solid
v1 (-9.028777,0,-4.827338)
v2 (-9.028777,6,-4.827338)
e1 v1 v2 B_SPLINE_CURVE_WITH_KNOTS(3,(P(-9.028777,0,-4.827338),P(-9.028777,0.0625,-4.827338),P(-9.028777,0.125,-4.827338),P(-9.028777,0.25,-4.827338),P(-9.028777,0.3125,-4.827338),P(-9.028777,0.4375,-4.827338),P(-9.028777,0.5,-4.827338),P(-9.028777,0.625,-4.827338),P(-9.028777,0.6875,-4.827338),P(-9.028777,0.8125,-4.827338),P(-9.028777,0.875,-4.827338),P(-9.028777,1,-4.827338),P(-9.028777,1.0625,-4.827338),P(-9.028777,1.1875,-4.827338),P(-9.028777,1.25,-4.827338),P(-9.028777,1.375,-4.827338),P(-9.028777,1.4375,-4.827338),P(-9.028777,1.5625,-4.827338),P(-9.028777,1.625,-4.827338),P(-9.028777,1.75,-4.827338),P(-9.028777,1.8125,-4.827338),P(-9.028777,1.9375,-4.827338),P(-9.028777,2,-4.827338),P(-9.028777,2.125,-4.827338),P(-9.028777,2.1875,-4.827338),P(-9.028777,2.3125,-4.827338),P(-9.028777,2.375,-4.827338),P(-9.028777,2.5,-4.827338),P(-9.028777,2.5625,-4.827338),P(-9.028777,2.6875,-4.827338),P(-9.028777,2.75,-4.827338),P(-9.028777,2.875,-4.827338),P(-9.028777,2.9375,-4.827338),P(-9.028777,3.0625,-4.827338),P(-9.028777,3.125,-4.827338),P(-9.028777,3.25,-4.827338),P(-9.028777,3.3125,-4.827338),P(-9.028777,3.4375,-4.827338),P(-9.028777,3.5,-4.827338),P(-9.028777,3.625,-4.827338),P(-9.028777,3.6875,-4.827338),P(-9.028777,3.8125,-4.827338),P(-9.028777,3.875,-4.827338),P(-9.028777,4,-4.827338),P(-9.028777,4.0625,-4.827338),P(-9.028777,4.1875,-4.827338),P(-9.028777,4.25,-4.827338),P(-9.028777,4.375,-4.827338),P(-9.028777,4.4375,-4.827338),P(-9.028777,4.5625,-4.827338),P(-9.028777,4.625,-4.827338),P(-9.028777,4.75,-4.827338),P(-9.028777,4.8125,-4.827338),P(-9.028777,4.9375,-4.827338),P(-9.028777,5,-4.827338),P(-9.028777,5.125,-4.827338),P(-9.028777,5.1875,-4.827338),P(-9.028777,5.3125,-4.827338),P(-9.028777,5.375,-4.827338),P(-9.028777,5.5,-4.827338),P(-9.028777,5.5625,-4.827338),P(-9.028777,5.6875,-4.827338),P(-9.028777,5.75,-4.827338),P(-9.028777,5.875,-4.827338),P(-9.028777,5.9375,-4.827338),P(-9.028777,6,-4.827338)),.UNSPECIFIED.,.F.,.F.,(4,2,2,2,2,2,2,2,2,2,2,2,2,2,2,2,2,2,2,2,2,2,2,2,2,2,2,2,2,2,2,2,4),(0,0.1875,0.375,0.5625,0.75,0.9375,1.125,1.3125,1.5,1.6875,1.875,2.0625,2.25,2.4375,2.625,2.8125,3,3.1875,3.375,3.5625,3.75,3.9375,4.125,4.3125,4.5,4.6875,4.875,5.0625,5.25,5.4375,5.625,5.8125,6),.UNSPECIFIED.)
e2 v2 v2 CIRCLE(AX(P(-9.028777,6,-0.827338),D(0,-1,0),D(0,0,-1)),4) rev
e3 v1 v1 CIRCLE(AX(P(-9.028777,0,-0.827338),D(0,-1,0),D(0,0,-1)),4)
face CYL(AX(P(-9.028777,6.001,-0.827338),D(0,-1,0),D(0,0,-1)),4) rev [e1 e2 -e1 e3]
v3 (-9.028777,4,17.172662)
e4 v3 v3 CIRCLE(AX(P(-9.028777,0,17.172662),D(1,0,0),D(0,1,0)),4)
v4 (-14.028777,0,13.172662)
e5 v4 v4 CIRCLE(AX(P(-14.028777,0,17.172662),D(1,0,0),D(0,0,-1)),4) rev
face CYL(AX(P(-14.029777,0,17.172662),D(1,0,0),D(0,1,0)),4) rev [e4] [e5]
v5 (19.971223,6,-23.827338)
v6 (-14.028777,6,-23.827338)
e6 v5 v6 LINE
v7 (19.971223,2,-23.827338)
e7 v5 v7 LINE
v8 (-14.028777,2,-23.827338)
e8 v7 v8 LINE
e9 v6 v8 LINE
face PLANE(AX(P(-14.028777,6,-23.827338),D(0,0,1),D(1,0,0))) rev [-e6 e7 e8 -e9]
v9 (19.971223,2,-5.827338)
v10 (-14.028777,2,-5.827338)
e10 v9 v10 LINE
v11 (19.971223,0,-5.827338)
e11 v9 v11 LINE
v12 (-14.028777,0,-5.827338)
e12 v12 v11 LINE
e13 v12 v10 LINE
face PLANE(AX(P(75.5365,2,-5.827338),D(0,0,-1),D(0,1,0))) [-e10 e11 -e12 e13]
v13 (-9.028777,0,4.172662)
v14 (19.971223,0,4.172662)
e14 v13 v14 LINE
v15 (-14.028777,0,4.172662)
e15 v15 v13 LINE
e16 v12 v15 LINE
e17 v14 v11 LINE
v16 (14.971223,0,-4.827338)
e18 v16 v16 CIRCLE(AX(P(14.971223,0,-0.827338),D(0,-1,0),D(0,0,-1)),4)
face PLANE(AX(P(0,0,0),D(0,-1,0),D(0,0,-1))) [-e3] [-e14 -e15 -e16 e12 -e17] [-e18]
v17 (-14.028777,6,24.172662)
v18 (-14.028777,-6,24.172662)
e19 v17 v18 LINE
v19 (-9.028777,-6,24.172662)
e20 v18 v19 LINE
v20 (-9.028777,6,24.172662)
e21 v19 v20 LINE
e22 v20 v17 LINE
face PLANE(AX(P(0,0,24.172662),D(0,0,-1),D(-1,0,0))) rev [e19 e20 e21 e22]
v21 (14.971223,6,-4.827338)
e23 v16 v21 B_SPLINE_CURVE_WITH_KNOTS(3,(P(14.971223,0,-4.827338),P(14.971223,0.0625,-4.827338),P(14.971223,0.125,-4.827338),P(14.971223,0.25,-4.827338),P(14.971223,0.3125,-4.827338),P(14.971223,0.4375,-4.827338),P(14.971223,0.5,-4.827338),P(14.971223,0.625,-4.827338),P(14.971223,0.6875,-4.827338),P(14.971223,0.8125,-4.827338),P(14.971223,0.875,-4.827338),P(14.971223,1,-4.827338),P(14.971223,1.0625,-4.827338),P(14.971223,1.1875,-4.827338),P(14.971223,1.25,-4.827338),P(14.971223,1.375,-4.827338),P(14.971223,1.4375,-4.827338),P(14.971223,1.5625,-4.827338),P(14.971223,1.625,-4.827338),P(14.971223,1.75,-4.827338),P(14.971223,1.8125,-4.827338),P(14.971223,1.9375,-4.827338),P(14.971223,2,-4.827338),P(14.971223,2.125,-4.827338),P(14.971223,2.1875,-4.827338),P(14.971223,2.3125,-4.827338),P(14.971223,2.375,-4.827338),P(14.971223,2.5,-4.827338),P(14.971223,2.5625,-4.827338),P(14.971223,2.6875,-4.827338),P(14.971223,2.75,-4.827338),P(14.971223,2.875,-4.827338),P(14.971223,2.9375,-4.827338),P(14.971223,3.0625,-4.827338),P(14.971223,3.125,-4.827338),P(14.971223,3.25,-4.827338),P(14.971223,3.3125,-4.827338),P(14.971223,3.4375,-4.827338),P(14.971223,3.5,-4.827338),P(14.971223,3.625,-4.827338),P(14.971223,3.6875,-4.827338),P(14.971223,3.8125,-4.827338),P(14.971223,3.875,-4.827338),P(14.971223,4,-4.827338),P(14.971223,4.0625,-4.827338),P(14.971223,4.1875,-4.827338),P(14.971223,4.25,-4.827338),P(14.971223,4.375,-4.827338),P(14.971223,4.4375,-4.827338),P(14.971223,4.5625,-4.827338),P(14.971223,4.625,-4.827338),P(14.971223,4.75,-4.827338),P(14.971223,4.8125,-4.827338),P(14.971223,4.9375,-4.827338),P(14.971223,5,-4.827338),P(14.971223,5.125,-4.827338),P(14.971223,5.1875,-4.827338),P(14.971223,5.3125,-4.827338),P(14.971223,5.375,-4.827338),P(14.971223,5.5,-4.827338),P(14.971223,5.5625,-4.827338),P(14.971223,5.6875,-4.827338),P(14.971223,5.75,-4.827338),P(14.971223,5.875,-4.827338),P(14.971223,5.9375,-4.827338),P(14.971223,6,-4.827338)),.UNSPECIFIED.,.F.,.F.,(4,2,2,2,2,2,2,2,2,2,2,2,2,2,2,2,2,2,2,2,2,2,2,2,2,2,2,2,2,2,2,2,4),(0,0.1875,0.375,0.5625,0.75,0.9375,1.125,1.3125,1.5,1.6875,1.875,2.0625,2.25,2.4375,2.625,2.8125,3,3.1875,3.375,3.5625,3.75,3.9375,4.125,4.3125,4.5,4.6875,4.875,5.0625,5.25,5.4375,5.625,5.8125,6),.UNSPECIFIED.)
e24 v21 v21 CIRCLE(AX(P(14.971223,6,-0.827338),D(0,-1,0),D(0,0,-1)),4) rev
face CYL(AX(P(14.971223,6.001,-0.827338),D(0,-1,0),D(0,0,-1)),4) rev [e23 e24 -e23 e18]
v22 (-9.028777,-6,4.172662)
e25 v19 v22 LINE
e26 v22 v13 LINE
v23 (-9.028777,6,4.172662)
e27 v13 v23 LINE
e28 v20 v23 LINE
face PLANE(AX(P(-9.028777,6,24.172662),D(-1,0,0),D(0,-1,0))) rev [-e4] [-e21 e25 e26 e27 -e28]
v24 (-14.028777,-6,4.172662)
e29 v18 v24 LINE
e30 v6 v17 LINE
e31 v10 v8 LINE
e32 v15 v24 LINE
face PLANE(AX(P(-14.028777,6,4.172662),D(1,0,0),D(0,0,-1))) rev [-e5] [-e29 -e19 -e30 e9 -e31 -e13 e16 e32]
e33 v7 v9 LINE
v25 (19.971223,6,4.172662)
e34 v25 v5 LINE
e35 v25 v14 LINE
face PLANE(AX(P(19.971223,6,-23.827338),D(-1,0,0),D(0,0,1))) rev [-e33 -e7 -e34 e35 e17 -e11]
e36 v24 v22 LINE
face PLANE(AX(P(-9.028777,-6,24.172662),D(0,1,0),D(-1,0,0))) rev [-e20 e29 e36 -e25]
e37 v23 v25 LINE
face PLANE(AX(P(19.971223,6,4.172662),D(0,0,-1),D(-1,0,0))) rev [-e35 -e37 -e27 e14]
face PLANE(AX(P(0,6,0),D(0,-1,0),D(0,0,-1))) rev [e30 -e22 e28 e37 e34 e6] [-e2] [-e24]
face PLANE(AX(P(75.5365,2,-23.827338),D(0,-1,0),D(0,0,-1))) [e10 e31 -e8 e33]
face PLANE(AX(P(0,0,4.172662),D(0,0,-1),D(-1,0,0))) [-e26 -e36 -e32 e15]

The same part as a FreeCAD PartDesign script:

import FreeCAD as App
import Part
import Sketcher
from FreeCAD import Vector


def add_polygon(sketch, points):
    """Adds a closed chain of lines whose ends are joined by coincident constraints."""
    first, n = sketch.GeometryCount, len(points)
    for a, b in zip(points, points[1:] + points[:1]):
        sketch.addGeometry(Part.LineSegment(App.Vector(*a, 0), App.Vector(*b, 0)), False)
    for i in range(n):
        sketch.addConstraint(Sketcher.Constraint("Coincident", first + i, 2, first + (i + 1) % n, 1))

doc = App.newDocument("Part")
body = doc.addObject("PartDesign::Body", "Body")

sketch1 = body.newObject("Sketcher::SketchObject", "Sketch")
sketch1.AttachmentSupport = (doc.getObject("XZ_Plane"), [""])
sketch1.MapMode = "FlatFace"
add_polygon(sketch1, [(-14.028777, -23.827338), (-14.028777, 4.172662), (19.971223, 4.172662), (19.971223, -23.827338)])
sketch1.addConstraint(Sketcher.Constraint("Vertical", 0))
sketch1.addConstraint(Sketcher.Constraint("Horizontal", 1))
sketch1.addConstraint(Sketcher.Constraint("Vertical", 2))
sketch1.addConstraint(Sketcher.Constraint("Horizontal", 3))
sketch1.addConstraint(Sketcher.Constraint("DistanceX", 1, 1, 1, 2, 34.0))
sketch1.addConstraint(Sketcher.Constraint("DistanceY", 0, 1, 0, 2, 28.0))
sketch1.addConstraint(Sketcher.Constraint("DistanceY", -1, 1, 0, 2, 4.172662))
sketch1.addConstraint(Sketcher.Constraint("DistanceX", 0, 2, -1, 1, 14.028777))
pad1 = body.newObject("PartDesign::Pad", "Pad")
pad1.Profile = sketch1
pad1.Length = 6
pad1.Reversed = True

sketch2 = body.newObject("Sketcher::SketchObject", "Sketch001")
sketch2.AttachmentSupport = (doc.getObject("YZ_Plane"), [""])
sketch2.MapMode = "FlatFace"
sketch2.AttachmentOffset = App.Placement(Vector(0, 0, 19.971223), App.Rotation())
add_polygon(sketch2, [(2, -90.395881), (2, -5.827338), (-66.568542, -5.827338), (-169.983865, -89.676932), (-101.415323, -174.245475)])
sketch2.addConstraint(Sketcher.Constraint("Vertical", 0))
sketch2.addConstraint(Sketcher.Constraint("Horizontal", 1))
sketch2.addConstraint(Sketcher.Constraint("Perpendicular", 2, 3))
sketch2.addConstraint(Sketcher.Constraint("Perpendicular", 3, 4))
sketch2.addConstraint(Sketcher.Constraint("Equal", 2, 4))
sketch2.addConstraint(Sketcher.Constraint("DistanceX", -1, 1, 0, 2, 2.0))
sketch2.addConstraint(Sketcher.Constraint("DistanceX", 1, 2, 1, 1, 68.568542))
sketch2.addConstraint(Sketcher.Constraint("DistanceY", 0, 1, 0, 2, 84.568542))
sketch2.addConstraint(Sketcher.Constraint("DistanceY", 0, 2, -1, 1, 5.827338))
sketch2.addConstraint(Sketcher.Constraint("DistanceX", 3, 2, 1, 2, 34.84678))
pocket1 = body.newObject("PartDesign::Pocket", "Pocket")
pocket1.Profile = sketch2
pocket1.Type = "ThroughAll"
pocket1.Midplane = True

sketch3 = body.newObject("Sketcher::SketchObject", "Sketch002")
sketch3.AttachmentSupport = (doc.getObject("XZ_Plane"), [""])
sketch3.MapMode = "FlatFace"
sketch3.addGeometry(Part.Circle(Vector(-9.028777, -0.827338, 0), Vector(0, 0, 1), 4), False)
sketch3.addConstraint(Sketcher.Constraint("Diameter", 0, 8.0))
sketch3.addConstraint(Sketcher.Constraint("DistanceY", 0, 3, -1, 1, 0.827338))
sketch3.addConstraint(Sketcher.Constraint("DistanceX", 0, 3, -1, 1, 9.028777))
pocket2 = body.newObject("PartDesign::Pocket", "Pocket001")
pocket2.Profile = sketch3
pocket2.Type = "UpToFirst"

sketch4 = body.newObject("Sketcher::SketchObject", "Sketch003")
sketch4.AttachmentSupport = (doc.getObject("XZ_Plane"), [""])
sketch4.MapMode = "FlatFace"
sketch4.addGeometry(Part.Circle(Vector(14.971223, -0.827338, 0), Vector(0, 0, 1), 4), False)
sketch4.addConstraint(Sketcher.Constraint("Diameter", 0, 8.0))
sketch4.addConstraint(Sketcher.Constraint("DistanceY", 0, 3, -1, 1, 0.827338))
sketch4.addConstraint(Sketcher.Constraint("DistanceX", -1, 1, 0, 3, 14.971223))
pocket3 = body.newObject("PartDesign::Pocket", "Pocket002")
pocket3.Profile = sketch4
pocket3.Type = "UpToFirst"

sketch5 = body.newObject("Sketcher::SketchObject", "Sketch004")
sketch5.AttachmentSupport = (doc.getObject("XY_Plane"), [""])
sketch5.MapMode = "FlatFace"
sketch5.AttachmentOffset = App.Placement(Vector(0, 0, 4.172662), App.Rotation())
add_polygon(sketch5, [(-14.028777, 6), (-14.028777, -6), (-9.028777, -6), (-9.028777, 6)])
sketch5.addConstraint(Sketcher.Constraint("Vertical", 0))
sketch5.addConstraint(Sketcher.Constraint("Horizontal", 1))
sketch5.addConstraint(Sketcher.Constraint("Vertical", 2))
sketch5.addConstraint(Sketcher.Constraint("Horizontal", 3))
sketch5.addConstraint(Sketcher.Constraint("DistanceX", 1, 1, 1, 2, 5.0))
sketch5.addConstraint(Sketcher.Constraint("DistanceY", 0, 2, 0, 1, 12.0))
sketch5.addConstraint(Sketcher.Constraint("DistanceY", 0, 2, -1, 1, 6.0))
sketch5.addConstraint(Sketcher.Constraint("DistanceX", 0, 2, -1, 1, 14.028777))
pad2 = body.newObject("PartDesign::Pad", "Pad001")
pad2.Profile = sketch5
pad2.Length = 20

sketch6 = body.newObject("Sketcher::SketchObject", "Sketch005")
sketch6.AttachmentSupport = (doc.getObject("YZ_Plane"), [""])
sketch6.MapMode = "FlatFace"
sketch6.AttachmentOffset = App.Placement(Vector(0, 0, -9.028777), App.Rotation())
sketch6.addGeometry(Part.Circle(Vector(0, 17.172662, 0), Vector(0, 0, 1), 4), False)
sketch6.addConstraint(Sketcher.Constraint("PointOnObject", 0, 3, -2))
sketch6.addConstraint(Sketcher.Constraint("Diameter", 0, 8.0))
sketch6.addConstraint(Sketcher.Constraint("DistanceY", -1, 1, 0, 3, 17.172662))
pocket4 = body.newObject("PartDesign::Pocket", "Pocket003")
pocket4.Profile = sketch6
pocket4.Type = "UpToFirst"

doc.recompute()
